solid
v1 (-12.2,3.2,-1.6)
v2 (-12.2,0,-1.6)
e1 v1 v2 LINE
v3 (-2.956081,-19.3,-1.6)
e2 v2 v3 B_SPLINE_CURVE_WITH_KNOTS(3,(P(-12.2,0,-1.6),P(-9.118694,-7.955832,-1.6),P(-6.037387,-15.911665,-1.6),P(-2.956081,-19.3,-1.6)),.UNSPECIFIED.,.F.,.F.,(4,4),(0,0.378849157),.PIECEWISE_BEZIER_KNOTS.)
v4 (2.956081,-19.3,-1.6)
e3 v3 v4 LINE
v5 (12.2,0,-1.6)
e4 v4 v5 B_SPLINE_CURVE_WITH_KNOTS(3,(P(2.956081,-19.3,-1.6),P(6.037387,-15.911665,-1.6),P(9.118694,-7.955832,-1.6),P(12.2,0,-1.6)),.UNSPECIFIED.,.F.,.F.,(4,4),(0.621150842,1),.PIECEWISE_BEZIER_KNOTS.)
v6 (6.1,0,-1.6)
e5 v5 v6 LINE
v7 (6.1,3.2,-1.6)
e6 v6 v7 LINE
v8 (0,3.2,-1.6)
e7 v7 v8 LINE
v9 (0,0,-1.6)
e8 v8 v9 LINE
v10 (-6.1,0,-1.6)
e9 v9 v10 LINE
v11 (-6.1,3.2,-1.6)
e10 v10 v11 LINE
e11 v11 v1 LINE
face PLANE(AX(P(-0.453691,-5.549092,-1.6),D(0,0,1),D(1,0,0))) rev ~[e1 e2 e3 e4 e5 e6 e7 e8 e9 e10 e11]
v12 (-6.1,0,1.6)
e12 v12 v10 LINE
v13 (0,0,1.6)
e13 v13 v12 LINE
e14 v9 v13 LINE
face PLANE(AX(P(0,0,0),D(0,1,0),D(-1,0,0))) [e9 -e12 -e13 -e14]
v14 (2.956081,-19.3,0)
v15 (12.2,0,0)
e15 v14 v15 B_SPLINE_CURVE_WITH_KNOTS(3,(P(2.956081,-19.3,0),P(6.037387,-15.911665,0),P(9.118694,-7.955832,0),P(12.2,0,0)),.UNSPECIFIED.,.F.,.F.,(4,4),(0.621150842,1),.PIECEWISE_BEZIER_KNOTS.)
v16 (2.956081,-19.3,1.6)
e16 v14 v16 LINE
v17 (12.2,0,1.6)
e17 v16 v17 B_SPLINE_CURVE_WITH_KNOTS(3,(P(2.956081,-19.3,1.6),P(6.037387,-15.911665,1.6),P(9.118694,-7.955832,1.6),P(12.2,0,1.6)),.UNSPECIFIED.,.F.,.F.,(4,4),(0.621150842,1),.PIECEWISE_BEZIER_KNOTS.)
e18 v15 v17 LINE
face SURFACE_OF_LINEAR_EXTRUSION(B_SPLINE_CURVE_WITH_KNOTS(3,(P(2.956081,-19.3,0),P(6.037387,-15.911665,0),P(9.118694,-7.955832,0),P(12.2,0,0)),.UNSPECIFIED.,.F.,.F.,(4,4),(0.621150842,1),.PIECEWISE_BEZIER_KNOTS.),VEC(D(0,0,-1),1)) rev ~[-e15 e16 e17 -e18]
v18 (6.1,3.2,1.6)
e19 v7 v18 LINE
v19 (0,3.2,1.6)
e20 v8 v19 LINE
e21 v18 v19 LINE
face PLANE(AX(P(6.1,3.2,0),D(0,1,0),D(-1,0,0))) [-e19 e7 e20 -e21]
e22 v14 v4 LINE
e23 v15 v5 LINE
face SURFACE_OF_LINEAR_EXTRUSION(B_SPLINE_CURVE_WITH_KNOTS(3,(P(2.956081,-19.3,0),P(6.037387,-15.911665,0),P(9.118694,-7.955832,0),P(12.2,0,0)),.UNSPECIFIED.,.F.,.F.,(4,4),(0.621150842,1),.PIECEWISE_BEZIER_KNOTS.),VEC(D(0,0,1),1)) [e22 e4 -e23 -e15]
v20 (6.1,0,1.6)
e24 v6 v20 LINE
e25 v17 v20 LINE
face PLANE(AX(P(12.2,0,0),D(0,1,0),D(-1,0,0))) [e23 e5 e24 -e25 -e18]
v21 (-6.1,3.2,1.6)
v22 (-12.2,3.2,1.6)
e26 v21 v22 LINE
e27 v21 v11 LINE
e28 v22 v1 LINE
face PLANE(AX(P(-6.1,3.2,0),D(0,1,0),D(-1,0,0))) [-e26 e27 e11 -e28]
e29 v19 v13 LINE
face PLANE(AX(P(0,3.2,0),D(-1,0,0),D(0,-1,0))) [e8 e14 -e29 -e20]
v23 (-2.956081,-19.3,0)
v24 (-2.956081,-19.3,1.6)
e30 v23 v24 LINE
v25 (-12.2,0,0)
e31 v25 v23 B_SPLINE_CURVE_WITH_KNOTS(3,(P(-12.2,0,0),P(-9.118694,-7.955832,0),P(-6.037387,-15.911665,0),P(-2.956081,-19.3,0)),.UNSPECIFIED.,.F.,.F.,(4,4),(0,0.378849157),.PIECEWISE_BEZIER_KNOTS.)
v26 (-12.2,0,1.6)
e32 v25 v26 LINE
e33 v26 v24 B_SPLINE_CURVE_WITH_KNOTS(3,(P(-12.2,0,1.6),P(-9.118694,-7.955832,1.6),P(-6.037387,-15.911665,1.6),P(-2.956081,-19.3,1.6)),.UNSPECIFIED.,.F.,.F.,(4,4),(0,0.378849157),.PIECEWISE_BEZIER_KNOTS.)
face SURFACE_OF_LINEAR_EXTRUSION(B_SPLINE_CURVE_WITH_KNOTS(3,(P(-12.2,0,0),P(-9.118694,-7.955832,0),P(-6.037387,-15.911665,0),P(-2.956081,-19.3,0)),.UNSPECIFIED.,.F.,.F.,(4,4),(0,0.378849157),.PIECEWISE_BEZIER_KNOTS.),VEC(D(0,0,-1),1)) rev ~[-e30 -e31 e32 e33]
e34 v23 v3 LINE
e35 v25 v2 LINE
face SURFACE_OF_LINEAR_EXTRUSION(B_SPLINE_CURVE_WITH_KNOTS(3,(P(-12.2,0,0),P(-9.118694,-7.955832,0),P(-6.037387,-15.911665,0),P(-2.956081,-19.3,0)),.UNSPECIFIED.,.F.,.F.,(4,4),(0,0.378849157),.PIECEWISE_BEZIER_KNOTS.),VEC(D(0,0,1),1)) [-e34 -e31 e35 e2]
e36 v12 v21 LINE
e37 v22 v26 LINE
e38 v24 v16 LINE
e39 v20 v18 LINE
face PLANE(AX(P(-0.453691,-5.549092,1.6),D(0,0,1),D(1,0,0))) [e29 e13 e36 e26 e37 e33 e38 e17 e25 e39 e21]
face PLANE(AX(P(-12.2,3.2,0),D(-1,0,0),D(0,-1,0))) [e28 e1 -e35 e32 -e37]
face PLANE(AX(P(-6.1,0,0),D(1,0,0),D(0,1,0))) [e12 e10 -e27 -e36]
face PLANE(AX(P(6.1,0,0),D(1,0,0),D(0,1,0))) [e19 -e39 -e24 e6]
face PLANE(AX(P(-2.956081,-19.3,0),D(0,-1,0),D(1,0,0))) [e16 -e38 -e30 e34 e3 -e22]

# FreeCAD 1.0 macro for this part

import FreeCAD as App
import Part
import Sketcher
from FreeCAD import Vector
Q = App.Units.Quantity

doc = App.newDocument("Part")
body = doc.addObject("PartDesign::Body", "Body")

sketch1 = body.newObject("Sketcher::SketchObject", "Sketch")
sketch1.AttachmentSupport = (doc.getObject("XY_Plane"), [""])
sketch1.MapMode = "FlatFace"
sketch1.addGeometry([
    Part.LineSegment(Vector(-12.2, 3.2, 0), Vector(-12.2, 0, 0)),
    Part.BSplineCurve([Vector(-12.2, 0, 0), Vector(-9.118694, -7.955832, 0), Vector(-6.037387, -15.911665, 0), Vector(-2.956081, -19.3, 0)], [4, 4], [0, 0.378849157], False, 3, [1, 1, 1, 1], False),
    Part.LineSegment(Vector(-2.956081, -19.3, 0), Vector(2.956081, -19.3, 0)),
    Part.BSplineCurve([Vector(2.956081, -19.3, 0), Vector(6.037387, -15.911665, 0), Vector(9.118694, -7.955832, 0), Vector(12.2, 0, 0)], [4, 4], [0.621150842, 1], False, 3, [1, 1, 1, 1], False),
    Part.LineSegment(Vector(12.2, 0, 0), Vector(6.1, 0, 0)),
    Part.LineSegment(Vector(6.1, 0, 0), Vector(6.1, 3.2, 0)),
    Part.LineSegment(Vector(6.1, 3.2, 0), Vector(0, 3.2, 0)),
    Part.LineSegment(Vector(0, 3.2, 0), Vector(0, 0, 0)),
    Part.LineSegment(Vector(0, 0, 0), Vector(-6.1, 0, 0)),
    Part.LineSegment(Vector(-6.1, 0, 0), Vector(-6.1, 3.2, 0)),
    Part.LineSegment(Vector(-6.1, 3.2, 0), Vector(-12.2, 3.2, 0)),
], False)
sketch1.addConstraint([
    Sketcher.Constraint("Block", 1),
    Sketcher.Constraint("Block", 3),
    Sketcher.Constraint("Coincident", 0, 2, 1, 1),
    Sketcher.Constraint("Coincident", 1, 2, 2, 1),
    Sketcher.Constraint("Coincident", 2, 2, 3, 1),
    Sketcher.Constraint("Coincident", 3, 2, 4, 1),
    Sketcher.Constraint("Coincident", 4, 2, 5, 1),
    Sketcher.Constraint("Coincident", 5, 2, 6, 1),
    Sketcher.Constraint("Coincident", 6, 2, 7, 1),
    Sketcher.Constraint("Coincident", 7, 2, 8, 1),
    Sketcher.Constraint("Coincident", 8, 2, 9, 1),
    Sketcher.Constraint("Coincident", 9, 2, 10, 1),
    Sketcher.Constraint("Coincident", 10, 2, 0, 1),
    Sketcher.Constraint("Vertical", 0),
    Sketcher.Constraint("Horizontal", 4),
    Sketcher.Constraint("Vertical", 5),
    Sketcher.Constraint("Horizontal", 6),
    Sketcher.Constraint("Vertical", 7),
    Sketcher.Constraint("Horizontal", 8),
    Sketcher.Constraint("Vertical", 9),
    Sketcher.Constraint("Horizontal", 10),
    Sketcher.Constraint("Coincident", 7, 2, -1, 1),
    Sketcher.Constraint("Symmetric", 5, 2, 9, 2, -2),
    Sketcher.Constraint("Equal", 4, 6),
    Sketcher.Constraint("DistanceY", 0, 2, 0, 1, Q("3.2 mm")),
])
pad1 = body.newObject("PartDesign::Pad", "Pad")
pad1.Profile = sketch1
pad1.Length = 3.2
pad1.Midplane = True

doc.recompute()
